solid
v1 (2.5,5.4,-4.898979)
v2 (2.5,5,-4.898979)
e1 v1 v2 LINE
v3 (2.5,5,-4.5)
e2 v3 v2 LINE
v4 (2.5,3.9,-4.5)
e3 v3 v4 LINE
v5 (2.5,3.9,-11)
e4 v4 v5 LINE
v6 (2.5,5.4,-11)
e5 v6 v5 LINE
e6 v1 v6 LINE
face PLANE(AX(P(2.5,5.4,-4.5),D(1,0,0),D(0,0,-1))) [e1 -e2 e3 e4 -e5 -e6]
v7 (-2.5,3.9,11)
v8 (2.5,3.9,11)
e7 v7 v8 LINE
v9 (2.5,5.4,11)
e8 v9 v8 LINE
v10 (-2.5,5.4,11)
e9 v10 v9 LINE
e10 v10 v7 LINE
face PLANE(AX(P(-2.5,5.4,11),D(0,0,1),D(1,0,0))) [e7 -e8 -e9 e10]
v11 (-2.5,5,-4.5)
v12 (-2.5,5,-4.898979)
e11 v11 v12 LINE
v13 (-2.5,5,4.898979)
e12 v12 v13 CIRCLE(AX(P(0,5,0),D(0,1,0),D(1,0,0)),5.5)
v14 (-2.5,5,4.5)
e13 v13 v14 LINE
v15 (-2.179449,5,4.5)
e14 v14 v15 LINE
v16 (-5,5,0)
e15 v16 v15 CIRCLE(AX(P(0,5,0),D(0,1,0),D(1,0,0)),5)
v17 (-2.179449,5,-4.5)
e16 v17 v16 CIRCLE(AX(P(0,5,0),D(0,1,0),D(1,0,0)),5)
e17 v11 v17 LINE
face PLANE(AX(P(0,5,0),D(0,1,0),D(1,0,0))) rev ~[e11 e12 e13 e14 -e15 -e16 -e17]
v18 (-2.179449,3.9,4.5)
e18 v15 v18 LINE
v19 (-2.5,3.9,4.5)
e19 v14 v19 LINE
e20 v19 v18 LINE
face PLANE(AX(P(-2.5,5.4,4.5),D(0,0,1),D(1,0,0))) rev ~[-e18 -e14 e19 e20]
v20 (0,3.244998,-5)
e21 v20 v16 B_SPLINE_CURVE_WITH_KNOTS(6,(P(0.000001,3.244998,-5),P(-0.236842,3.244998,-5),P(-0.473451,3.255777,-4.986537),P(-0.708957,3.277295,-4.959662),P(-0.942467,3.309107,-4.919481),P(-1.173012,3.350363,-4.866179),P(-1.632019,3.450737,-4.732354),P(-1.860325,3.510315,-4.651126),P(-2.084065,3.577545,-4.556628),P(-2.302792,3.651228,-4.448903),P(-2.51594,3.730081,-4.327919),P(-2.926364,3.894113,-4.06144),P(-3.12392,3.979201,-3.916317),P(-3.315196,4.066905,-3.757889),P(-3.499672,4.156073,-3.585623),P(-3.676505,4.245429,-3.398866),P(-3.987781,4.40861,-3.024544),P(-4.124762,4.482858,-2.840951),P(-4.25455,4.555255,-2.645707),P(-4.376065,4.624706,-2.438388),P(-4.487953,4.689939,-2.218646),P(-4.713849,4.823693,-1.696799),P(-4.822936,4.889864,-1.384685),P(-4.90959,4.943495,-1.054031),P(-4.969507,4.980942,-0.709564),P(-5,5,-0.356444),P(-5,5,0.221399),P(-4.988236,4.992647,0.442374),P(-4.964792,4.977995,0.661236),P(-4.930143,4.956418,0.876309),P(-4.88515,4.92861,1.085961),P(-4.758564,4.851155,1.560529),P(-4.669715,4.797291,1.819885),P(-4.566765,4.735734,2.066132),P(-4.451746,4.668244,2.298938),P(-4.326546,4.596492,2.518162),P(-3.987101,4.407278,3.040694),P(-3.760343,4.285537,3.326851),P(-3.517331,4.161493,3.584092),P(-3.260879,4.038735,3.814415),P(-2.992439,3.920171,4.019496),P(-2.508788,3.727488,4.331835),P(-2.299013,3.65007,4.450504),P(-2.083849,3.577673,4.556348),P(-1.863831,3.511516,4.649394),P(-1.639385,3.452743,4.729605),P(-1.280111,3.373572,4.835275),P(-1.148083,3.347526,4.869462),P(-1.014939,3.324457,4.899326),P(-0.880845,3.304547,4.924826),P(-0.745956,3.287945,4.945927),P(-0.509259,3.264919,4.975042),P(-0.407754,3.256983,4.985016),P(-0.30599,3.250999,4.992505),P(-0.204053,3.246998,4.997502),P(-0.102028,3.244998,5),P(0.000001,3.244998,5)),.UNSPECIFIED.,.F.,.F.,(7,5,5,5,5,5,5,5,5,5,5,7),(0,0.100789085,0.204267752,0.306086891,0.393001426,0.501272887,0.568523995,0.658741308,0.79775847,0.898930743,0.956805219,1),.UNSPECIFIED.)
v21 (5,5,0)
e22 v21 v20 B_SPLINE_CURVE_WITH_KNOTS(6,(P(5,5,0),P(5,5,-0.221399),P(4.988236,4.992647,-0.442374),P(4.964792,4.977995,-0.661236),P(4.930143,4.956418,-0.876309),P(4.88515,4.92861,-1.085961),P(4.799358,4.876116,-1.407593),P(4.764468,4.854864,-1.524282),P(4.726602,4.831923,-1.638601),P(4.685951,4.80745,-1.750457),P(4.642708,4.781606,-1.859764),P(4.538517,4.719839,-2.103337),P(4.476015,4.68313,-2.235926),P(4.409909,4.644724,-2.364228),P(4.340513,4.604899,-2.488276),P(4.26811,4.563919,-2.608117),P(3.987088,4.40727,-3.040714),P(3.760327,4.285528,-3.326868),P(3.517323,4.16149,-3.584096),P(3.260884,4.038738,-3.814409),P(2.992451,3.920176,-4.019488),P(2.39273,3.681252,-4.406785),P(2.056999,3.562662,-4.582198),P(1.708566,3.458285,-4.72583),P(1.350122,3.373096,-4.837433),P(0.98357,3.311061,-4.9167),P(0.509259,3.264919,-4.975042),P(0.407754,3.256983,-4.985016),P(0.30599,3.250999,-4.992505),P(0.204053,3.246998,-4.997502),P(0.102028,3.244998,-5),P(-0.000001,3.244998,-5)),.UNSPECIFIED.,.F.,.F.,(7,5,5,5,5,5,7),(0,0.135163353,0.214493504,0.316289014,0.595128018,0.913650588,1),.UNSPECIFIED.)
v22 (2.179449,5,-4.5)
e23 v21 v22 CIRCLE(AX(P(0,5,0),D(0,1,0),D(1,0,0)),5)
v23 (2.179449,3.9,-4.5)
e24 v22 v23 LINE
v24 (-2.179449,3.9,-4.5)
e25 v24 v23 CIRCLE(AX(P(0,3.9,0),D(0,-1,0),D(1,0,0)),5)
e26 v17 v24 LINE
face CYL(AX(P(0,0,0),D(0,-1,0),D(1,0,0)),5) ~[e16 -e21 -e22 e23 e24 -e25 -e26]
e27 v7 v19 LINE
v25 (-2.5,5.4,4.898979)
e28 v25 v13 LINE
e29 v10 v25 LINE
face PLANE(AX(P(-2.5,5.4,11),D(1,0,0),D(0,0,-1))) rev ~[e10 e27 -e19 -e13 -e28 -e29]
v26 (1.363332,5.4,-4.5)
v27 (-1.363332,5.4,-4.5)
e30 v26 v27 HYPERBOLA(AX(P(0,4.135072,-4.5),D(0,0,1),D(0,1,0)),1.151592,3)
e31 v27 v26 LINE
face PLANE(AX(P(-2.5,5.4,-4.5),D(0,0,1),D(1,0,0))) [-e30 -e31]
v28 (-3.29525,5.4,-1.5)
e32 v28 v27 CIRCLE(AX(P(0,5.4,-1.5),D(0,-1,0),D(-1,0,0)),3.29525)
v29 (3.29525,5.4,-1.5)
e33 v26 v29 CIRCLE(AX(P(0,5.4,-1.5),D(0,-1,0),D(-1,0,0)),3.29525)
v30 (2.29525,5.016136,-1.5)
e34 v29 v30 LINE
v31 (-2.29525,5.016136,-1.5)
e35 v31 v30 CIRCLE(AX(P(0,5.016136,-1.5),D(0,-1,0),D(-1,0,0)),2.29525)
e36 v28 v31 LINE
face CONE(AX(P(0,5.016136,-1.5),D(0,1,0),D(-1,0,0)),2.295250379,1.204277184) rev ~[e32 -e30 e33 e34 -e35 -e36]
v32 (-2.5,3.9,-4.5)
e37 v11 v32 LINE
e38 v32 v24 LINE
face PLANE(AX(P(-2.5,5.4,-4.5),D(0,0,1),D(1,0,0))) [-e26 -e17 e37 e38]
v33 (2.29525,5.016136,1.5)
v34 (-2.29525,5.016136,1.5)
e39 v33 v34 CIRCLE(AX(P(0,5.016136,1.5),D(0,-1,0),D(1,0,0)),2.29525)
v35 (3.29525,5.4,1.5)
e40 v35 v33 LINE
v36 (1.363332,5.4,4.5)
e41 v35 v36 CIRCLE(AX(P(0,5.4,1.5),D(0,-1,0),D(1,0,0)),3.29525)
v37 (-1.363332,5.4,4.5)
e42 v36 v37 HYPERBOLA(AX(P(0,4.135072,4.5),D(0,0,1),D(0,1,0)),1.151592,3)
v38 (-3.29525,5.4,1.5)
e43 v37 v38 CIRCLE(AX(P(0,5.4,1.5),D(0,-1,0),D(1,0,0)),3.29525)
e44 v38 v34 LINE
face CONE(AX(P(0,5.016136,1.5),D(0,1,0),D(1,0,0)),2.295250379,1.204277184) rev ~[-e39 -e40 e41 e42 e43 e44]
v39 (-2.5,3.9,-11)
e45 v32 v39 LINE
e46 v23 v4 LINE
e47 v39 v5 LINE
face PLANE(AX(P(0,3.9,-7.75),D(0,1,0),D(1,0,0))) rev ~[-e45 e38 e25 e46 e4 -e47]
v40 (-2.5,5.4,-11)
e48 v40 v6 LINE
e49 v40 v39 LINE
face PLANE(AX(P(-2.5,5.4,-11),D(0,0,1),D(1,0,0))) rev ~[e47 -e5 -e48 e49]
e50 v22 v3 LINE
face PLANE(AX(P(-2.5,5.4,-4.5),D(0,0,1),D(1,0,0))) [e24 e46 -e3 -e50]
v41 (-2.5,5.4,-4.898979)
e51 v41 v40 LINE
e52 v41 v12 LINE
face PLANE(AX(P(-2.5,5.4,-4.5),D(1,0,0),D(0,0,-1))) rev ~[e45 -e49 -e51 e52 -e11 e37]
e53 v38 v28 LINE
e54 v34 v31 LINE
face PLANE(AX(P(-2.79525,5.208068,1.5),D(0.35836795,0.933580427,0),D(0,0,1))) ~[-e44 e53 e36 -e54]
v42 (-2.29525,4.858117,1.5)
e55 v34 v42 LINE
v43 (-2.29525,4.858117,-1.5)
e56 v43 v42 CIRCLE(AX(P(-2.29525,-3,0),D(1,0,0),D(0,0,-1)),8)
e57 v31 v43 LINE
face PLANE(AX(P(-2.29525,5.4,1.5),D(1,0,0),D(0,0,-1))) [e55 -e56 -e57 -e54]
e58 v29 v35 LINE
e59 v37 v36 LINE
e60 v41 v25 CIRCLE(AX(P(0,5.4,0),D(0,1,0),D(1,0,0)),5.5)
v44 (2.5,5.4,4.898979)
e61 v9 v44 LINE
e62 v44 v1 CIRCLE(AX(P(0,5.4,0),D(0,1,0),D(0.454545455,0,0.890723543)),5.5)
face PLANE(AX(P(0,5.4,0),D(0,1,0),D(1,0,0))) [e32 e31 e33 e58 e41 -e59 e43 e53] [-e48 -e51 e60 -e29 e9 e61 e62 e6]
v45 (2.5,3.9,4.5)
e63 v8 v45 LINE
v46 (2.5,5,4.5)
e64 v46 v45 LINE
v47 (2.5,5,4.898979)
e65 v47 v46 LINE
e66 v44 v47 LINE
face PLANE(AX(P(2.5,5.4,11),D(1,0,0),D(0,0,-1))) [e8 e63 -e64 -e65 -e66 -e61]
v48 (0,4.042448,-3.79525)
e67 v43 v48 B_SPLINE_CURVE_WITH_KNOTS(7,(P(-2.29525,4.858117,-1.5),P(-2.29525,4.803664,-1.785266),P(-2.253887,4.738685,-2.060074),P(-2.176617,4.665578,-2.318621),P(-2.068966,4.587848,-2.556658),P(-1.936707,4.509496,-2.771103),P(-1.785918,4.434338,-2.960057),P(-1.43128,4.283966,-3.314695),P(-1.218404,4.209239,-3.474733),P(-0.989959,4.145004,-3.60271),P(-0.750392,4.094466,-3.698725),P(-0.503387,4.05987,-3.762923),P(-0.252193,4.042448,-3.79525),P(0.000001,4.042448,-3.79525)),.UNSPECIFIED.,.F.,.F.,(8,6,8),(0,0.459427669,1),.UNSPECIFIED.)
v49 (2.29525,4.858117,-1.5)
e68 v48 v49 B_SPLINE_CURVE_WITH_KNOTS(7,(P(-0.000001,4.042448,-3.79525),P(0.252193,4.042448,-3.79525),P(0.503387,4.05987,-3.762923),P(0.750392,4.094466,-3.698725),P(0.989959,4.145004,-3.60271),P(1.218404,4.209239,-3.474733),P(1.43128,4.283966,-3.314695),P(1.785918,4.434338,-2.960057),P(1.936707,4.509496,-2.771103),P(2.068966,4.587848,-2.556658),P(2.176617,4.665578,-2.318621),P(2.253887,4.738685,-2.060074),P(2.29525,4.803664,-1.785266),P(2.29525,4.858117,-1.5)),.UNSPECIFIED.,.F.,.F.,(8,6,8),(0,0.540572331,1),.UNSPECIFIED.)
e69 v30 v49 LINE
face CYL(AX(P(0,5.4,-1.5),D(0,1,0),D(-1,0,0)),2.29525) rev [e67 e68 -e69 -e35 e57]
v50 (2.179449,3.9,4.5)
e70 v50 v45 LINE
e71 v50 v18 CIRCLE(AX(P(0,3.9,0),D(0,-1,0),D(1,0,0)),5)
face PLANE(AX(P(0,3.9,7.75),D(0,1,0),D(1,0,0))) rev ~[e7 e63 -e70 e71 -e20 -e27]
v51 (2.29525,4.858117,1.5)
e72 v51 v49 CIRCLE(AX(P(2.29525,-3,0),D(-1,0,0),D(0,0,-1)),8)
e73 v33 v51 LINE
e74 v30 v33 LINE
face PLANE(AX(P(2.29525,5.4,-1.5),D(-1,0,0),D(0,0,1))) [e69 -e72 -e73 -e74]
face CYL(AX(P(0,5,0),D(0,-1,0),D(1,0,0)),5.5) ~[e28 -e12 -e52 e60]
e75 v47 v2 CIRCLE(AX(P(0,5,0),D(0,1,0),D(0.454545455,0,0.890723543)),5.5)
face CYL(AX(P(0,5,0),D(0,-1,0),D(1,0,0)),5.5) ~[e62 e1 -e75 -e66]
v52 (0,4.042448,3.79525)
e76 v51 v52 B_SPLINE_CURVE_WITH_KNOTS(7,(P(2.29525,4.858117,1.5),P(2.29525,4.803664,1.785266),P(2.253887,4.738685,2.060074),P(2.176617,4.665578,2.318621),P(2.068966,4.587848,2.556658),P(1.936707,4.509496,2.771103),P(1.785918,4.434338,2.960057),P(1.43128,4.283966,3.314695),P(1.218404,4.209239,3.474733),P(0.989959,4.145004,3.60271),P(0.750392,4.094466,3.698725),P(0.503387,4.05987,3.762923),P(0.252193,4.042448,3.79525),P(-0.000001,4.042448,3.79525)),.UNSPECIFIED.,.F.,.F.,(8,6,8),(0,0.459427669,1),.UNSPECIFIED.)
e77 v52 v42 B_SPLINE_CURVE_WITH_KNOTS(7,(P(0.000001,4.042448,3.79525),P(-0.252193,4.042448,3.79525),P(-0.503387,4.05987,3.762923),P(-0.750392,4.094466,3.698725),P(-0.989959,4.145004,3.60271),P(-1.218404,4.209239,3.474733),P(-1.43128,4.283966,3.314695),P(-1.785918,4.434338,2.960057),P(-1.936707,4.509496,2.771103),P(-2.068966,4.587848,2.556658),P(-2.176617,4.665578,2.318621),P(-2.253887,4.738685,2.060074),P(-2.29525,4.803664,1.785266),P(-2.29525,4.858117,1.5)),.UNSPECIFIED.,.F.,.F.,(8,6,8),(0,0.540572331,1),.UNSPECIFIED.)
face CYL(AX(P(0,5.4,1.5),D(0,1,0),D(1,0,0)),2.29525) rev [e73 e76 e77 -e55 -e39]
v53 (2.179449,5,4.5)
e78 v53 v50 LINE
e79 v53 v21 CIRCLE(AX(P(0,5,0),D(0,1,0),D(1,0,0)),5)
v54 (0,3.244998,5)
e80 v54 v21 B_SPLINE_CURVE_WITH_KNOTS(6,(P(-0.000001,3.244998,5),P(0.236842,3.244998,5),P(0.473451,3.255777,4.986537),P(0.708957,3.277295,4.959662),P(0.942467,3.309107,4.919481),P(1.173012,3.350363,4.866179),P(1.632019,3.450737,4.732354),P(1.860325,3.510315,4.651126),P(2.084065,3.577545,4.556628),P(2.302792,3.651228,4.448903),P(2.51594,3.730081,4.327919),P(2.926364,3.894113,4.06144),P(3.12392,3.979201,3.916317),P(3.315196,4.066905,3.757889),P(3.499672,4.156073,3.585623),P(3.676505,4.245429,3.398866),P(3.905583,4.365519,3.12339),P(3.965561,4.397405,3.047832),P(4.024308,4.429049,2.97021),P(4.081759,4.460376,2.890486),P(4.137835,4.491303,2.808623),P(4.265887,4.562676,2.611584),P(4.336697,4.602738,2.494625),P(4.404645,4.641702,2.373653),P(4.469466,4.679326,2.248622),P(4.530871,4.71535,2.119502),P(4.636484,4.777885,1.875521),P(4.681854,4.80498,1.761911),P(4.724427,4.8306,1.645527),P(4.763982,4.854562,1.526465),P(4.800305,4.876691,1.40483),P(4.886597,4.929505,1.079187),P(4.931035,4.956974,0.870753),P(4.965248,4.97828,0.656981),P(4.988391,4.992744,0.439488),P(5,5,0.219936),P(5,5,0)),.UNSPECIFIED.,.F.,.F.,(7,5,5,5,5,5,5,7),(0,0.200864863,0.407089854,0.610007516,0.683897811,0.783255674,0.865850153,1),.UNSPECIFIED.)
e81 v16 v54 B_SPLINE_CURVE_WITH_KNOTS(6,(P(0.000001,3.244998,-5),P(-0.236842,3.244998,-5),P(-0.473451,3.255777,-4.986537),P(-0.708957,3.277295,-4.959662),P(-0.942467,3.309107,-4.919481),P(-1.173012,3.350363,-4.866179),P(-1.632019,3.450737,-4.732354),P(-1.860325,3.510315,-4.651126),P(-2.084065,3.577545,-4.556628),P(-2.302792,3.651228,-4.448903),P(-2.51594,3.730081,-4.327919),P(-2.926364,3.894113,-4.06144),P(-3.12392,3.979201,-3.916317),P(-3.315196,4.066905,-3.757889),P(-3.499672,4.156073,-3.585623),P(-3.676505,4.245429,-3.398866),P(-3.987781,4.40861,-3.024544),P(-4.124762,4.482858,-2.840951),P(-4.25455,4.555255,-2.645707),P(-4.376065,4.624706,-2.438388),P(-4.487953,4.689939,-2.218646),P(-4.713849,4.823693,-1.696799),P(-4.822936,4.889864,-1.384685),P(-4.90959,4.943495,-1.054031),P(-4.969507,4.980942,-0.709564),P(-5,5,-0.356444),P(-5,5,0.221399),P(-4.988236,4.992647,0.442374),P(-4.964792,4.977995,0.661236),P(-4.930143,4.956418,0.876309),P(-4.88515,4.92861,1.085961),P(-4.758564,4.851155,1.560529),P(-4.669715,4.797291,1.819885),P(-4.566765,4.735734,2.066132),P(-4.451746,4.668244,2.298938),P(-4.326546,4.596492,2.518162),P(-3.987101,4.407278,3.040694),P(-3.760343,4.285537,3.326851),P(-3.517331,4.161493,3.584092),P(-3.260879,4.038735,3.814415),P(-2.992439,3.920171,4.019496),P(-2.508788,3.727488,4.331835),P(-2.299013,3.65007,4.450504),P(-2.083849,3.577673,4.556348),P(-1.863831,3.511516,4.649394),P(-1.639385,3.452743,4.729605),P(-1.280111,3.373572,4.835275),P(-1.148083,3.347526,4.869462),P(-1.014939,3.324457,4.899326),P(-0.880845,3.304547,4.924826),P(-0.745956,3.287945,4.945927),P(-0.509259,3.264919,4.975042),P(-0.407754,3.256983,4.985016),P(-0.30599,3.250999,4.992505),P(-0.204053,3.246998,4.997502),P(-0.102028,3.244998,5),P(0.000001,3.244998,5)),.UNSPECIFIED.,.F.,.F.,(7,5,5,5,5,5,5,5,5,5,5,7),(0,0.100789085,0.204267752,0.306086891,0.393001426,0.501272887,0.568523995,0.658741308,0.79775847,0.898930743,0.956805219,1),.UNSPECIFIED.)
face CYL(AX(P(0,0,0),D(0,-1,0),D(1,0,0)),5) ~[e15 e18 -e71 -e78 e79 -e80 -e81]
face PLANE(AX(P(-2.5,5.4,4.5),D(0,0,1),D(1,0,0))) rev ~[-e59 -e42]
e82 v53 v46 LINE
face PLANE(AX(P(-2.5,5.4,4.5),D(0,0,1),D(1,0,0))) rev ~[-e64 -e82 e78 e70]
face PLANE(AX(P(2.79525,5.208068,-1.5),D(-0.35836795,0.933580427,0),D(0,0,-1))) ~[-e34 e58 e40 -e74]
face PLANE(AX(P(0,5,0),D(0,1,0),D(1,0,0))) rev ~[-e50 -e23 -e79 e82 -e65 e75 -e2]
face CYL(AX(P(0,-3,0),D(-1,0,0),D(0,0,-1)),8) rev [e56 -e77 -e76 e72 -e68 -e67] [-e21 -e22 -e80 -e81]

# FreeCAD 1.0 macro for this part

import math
import FreeCAD as App
import Part
import Sketcher

V = App.Vector
Q = App.Units.Quantity


def edges_at(feature, points):
    """Names of the edges that pass closest to the given points."""
    edges = feature.Shape.Edges
    near = lambda p: min(range(len(edges)), key=lambda i: edges[i].distToShape(Part.Vertex(*p))[0])
    return sorted({f"Edge{near(p) + 1}" for p in points})


def add_polygon(sketch, points):
    """Adds a closed chain of lines whose ends are joined by coincident constraints."""
    first, n = sketch.GeometryCount, len(points)
    for a, b in zip(points, points[1:] + points[:1]):
        sketch.addGeometry(Part.LineSegment(App.Vector(*a, 0), App.Vector(*b, 0)), False)
    for i in range(n):
        sketch.addConstraint(Sketcher.Constraint("Coincident", first + i, 2, first + (i + 1) % n, 1))

doc = App.newDocument("Part")
body = doc.addObject("PartDesign::Body", "Body")

sketch1 = body.newObject("Sketcher::SketchObject", "Sketch")
sketch1.AttachmentSupport = (doc.getObject("XZ_Plane"), [""])
sketch1.MapMode = "FlatFace"
sketch1.addGeometry(Part.Circle(V(0, 0, 0), V(0, 0, 1), 5), False)
sketch1.addConstraint([
    Sketcher.Constraint("Coincident", 0, 3, -1, 1),
    Sketcher.Constraint("Diameter", 0, Q("10 mm")),
])
pad1 = body.newObject("PartDesign::Pad", "Pad")
pad1.Profile = sketch1
pad1.Length = 5
pad1.Reversed = True

sketch2 = body.newObject("Sketcher::SketchObject", "Sketch001")
sketch2.AttachmentSupport = (doc.getObject("XZ_Plane"), [""])
sketch2.MapMode = "FlatFace"
sketch2.AttachmentOffset = App.Placement(V(0, 0, -5), App.Rotation())
sketch2.addGeometry(Part.Circle(V(0, 0, 0), V(0, 0, 1), 6), False)
sketch2.addConstraint([
    Sketcher.Constraint("Coincident", 0, 3, -1, 1),
    Sketcher.Constraint("Diameter", 0, Q("11 mm")),
])
pad2 = body.newObject("PartDesign::Pad", "Pad001")
pad2.Profile = sketch2
pad2.Length = 0.4
pad2.Reversed = True

sketch3 = body.newObject("Sketcher::SketchObject", "Sketch002")
sketch3.AttachmentSupport = (doc.getObject("XZ_Plane"), [""])
sketch3.MapMode = "FlatFace"
sketch3.AttachmentOffset = App.Placement(V(0, 0, -5.4), App.Rotation())
sketch3.addGeometry([
    Part.LineSegment(V(2.3, 1.5, 0), V(2.3, -1.5, 0)),
    Part.ArcOfCircle(Part.Circle(V(0, -1.5, 0), V(0, 0, 1), 2.3), math.radians(180), math.radians(360)),
    Part.LineSegment(V(-2.3, -1.5, 0), V(-2.3, 1.5, 0)),
    Part.ArcOfCircle(Part.Circle(V(0, 1.5, 0), V(0, 0, 1), 2.3), math.radians(0), math.radians(180)),
], False)
sketch3.addConstraint([
    Sketcher.Constraint("Tangent", 0, 2, 1, 2),
    Sketcher.Constraint("Tangent", 1, 1, 2, 1),
    Sketcher.Constraint("Tangent", 2, 2, 3, 2),
    Sketcher.Constraint("Tangent", 3, 1, 0, 1),
    Sketcher.Constraint("Vertical", 0),
    Sketcher.Constraint("Vertical", 2),
    Sketcher.Constraint("Symmetric", 1, 3, 3, 3, -1, 1),
    Sketcher.Constraint("DistanceY", 0, 2, 0, 1, Q("3 mm")),
    Sketcher.Constraint("Radius", 1, Q("2.29525 mm")),
])
pocket1 = body.newObject("PartDesign::Pocket", "Pocket")
pocket1.Profile = sketch3
pocket1.Type = "ThroughAll"
pocket1.Reversed = True

sketch4 = body.newObject("Sketcher::SketchObject", "Sketch003")
sketch4.AttachmentSupport = (doc.getObject("YZ_Plane"), [""])
sketch4.MapMode = "FlatFace"
sketch4.addGeometry(Part.Circle(V(-3, 0, 0), V(0, 0, 1), 8), False)
sketch4.addConstraint([
    Sketcher.Constraint("PointOnObject", 0, 3, -1),
    Sketcher.Constraint("Diameter", 0, Q("16 mm")),
    Sketcher.Constraint("DistanceX", 0, 3, -1, 1, Q("3 mm")),
])
pocket2 = body.newObject("PartDesign::Pocket", "Pocket001")
pocket2.Profile = sketch4
pocket2.Type = "ThroughAll"
pocket2.Midplane = True
doc.recompute()

chamfer = body.newObject("PartDesign::Chamfer", "Chamfer")
chamfer.Base = (pocket2, edges_at(pocket2, [
    (0, 5.4, -3.795),
    (-2.295, 5.4, 0),
    (0, 5.4, 3.795),
    (2.295, 5.4, 0),
]))
chamfer.ChamferType = "Two distances"
chamfer.Size = 1
chamfer.Size2 = 0.383864

sketch5 = body.newObject("Sketcher::SketchObject", "Sketch004")
sketch5.AttachmentSupport = (doc.getObject("XZ_Plane"), [""])
sketch5.MapMode = "FlatFace"
sketch5.AttachmentOffset = App.Placement(V(0, 0, -5.4), App.Rotation())
add_polygon(sketch5, [(-2, -11), (-2, -4), (2, -4), (2, -11)])
add_polygon(sketch5, [(-2, 4), (-2, 11), (2, 11), (2, 4)])
sketch5.addConstraint([
    Sketcher.Constraint("Vertical", 0),
    Sketcher.Constraint("Horizontal", 1),
    Sketcher.Constraint("Vertical", 2),
    Sketcher.Constraint("Horizontal", 3),
    Sketcher.Constraint("Vertical", 4),
    Sketcher.Constraint("Horizontal", 5),
    Sketcher.Constraint("Vertical", 6),
    Sketcher.Constraint("Horizontal", 7),
    Sketcher.Constraint("Symmetric", 2, 2, 4, 2, -1, 1),
    Sketcher.Constraint("Symmetric", 0, 2, 6, 2, -1, 1),
    Sketcher.Constraint("Vertical", 3, 2, 4, 2),
    Sketcher.Constraint("DistanceX", 1, 1, 1, 2, Q("5 mm")),
    Sketcher.Constraint("DistanceY", 0, 1, 0, 2, Q("6.5 mm")),
    Sketcher.Constraint("DistanceY", 2, 2, -1, 1, Q("11 mm")),
])
pad3 = body.newObject("PartDesign::Pad", "Pad002")
pad3.Profile = sketch5
pad3.Length = 1.5

doc.recompute()
